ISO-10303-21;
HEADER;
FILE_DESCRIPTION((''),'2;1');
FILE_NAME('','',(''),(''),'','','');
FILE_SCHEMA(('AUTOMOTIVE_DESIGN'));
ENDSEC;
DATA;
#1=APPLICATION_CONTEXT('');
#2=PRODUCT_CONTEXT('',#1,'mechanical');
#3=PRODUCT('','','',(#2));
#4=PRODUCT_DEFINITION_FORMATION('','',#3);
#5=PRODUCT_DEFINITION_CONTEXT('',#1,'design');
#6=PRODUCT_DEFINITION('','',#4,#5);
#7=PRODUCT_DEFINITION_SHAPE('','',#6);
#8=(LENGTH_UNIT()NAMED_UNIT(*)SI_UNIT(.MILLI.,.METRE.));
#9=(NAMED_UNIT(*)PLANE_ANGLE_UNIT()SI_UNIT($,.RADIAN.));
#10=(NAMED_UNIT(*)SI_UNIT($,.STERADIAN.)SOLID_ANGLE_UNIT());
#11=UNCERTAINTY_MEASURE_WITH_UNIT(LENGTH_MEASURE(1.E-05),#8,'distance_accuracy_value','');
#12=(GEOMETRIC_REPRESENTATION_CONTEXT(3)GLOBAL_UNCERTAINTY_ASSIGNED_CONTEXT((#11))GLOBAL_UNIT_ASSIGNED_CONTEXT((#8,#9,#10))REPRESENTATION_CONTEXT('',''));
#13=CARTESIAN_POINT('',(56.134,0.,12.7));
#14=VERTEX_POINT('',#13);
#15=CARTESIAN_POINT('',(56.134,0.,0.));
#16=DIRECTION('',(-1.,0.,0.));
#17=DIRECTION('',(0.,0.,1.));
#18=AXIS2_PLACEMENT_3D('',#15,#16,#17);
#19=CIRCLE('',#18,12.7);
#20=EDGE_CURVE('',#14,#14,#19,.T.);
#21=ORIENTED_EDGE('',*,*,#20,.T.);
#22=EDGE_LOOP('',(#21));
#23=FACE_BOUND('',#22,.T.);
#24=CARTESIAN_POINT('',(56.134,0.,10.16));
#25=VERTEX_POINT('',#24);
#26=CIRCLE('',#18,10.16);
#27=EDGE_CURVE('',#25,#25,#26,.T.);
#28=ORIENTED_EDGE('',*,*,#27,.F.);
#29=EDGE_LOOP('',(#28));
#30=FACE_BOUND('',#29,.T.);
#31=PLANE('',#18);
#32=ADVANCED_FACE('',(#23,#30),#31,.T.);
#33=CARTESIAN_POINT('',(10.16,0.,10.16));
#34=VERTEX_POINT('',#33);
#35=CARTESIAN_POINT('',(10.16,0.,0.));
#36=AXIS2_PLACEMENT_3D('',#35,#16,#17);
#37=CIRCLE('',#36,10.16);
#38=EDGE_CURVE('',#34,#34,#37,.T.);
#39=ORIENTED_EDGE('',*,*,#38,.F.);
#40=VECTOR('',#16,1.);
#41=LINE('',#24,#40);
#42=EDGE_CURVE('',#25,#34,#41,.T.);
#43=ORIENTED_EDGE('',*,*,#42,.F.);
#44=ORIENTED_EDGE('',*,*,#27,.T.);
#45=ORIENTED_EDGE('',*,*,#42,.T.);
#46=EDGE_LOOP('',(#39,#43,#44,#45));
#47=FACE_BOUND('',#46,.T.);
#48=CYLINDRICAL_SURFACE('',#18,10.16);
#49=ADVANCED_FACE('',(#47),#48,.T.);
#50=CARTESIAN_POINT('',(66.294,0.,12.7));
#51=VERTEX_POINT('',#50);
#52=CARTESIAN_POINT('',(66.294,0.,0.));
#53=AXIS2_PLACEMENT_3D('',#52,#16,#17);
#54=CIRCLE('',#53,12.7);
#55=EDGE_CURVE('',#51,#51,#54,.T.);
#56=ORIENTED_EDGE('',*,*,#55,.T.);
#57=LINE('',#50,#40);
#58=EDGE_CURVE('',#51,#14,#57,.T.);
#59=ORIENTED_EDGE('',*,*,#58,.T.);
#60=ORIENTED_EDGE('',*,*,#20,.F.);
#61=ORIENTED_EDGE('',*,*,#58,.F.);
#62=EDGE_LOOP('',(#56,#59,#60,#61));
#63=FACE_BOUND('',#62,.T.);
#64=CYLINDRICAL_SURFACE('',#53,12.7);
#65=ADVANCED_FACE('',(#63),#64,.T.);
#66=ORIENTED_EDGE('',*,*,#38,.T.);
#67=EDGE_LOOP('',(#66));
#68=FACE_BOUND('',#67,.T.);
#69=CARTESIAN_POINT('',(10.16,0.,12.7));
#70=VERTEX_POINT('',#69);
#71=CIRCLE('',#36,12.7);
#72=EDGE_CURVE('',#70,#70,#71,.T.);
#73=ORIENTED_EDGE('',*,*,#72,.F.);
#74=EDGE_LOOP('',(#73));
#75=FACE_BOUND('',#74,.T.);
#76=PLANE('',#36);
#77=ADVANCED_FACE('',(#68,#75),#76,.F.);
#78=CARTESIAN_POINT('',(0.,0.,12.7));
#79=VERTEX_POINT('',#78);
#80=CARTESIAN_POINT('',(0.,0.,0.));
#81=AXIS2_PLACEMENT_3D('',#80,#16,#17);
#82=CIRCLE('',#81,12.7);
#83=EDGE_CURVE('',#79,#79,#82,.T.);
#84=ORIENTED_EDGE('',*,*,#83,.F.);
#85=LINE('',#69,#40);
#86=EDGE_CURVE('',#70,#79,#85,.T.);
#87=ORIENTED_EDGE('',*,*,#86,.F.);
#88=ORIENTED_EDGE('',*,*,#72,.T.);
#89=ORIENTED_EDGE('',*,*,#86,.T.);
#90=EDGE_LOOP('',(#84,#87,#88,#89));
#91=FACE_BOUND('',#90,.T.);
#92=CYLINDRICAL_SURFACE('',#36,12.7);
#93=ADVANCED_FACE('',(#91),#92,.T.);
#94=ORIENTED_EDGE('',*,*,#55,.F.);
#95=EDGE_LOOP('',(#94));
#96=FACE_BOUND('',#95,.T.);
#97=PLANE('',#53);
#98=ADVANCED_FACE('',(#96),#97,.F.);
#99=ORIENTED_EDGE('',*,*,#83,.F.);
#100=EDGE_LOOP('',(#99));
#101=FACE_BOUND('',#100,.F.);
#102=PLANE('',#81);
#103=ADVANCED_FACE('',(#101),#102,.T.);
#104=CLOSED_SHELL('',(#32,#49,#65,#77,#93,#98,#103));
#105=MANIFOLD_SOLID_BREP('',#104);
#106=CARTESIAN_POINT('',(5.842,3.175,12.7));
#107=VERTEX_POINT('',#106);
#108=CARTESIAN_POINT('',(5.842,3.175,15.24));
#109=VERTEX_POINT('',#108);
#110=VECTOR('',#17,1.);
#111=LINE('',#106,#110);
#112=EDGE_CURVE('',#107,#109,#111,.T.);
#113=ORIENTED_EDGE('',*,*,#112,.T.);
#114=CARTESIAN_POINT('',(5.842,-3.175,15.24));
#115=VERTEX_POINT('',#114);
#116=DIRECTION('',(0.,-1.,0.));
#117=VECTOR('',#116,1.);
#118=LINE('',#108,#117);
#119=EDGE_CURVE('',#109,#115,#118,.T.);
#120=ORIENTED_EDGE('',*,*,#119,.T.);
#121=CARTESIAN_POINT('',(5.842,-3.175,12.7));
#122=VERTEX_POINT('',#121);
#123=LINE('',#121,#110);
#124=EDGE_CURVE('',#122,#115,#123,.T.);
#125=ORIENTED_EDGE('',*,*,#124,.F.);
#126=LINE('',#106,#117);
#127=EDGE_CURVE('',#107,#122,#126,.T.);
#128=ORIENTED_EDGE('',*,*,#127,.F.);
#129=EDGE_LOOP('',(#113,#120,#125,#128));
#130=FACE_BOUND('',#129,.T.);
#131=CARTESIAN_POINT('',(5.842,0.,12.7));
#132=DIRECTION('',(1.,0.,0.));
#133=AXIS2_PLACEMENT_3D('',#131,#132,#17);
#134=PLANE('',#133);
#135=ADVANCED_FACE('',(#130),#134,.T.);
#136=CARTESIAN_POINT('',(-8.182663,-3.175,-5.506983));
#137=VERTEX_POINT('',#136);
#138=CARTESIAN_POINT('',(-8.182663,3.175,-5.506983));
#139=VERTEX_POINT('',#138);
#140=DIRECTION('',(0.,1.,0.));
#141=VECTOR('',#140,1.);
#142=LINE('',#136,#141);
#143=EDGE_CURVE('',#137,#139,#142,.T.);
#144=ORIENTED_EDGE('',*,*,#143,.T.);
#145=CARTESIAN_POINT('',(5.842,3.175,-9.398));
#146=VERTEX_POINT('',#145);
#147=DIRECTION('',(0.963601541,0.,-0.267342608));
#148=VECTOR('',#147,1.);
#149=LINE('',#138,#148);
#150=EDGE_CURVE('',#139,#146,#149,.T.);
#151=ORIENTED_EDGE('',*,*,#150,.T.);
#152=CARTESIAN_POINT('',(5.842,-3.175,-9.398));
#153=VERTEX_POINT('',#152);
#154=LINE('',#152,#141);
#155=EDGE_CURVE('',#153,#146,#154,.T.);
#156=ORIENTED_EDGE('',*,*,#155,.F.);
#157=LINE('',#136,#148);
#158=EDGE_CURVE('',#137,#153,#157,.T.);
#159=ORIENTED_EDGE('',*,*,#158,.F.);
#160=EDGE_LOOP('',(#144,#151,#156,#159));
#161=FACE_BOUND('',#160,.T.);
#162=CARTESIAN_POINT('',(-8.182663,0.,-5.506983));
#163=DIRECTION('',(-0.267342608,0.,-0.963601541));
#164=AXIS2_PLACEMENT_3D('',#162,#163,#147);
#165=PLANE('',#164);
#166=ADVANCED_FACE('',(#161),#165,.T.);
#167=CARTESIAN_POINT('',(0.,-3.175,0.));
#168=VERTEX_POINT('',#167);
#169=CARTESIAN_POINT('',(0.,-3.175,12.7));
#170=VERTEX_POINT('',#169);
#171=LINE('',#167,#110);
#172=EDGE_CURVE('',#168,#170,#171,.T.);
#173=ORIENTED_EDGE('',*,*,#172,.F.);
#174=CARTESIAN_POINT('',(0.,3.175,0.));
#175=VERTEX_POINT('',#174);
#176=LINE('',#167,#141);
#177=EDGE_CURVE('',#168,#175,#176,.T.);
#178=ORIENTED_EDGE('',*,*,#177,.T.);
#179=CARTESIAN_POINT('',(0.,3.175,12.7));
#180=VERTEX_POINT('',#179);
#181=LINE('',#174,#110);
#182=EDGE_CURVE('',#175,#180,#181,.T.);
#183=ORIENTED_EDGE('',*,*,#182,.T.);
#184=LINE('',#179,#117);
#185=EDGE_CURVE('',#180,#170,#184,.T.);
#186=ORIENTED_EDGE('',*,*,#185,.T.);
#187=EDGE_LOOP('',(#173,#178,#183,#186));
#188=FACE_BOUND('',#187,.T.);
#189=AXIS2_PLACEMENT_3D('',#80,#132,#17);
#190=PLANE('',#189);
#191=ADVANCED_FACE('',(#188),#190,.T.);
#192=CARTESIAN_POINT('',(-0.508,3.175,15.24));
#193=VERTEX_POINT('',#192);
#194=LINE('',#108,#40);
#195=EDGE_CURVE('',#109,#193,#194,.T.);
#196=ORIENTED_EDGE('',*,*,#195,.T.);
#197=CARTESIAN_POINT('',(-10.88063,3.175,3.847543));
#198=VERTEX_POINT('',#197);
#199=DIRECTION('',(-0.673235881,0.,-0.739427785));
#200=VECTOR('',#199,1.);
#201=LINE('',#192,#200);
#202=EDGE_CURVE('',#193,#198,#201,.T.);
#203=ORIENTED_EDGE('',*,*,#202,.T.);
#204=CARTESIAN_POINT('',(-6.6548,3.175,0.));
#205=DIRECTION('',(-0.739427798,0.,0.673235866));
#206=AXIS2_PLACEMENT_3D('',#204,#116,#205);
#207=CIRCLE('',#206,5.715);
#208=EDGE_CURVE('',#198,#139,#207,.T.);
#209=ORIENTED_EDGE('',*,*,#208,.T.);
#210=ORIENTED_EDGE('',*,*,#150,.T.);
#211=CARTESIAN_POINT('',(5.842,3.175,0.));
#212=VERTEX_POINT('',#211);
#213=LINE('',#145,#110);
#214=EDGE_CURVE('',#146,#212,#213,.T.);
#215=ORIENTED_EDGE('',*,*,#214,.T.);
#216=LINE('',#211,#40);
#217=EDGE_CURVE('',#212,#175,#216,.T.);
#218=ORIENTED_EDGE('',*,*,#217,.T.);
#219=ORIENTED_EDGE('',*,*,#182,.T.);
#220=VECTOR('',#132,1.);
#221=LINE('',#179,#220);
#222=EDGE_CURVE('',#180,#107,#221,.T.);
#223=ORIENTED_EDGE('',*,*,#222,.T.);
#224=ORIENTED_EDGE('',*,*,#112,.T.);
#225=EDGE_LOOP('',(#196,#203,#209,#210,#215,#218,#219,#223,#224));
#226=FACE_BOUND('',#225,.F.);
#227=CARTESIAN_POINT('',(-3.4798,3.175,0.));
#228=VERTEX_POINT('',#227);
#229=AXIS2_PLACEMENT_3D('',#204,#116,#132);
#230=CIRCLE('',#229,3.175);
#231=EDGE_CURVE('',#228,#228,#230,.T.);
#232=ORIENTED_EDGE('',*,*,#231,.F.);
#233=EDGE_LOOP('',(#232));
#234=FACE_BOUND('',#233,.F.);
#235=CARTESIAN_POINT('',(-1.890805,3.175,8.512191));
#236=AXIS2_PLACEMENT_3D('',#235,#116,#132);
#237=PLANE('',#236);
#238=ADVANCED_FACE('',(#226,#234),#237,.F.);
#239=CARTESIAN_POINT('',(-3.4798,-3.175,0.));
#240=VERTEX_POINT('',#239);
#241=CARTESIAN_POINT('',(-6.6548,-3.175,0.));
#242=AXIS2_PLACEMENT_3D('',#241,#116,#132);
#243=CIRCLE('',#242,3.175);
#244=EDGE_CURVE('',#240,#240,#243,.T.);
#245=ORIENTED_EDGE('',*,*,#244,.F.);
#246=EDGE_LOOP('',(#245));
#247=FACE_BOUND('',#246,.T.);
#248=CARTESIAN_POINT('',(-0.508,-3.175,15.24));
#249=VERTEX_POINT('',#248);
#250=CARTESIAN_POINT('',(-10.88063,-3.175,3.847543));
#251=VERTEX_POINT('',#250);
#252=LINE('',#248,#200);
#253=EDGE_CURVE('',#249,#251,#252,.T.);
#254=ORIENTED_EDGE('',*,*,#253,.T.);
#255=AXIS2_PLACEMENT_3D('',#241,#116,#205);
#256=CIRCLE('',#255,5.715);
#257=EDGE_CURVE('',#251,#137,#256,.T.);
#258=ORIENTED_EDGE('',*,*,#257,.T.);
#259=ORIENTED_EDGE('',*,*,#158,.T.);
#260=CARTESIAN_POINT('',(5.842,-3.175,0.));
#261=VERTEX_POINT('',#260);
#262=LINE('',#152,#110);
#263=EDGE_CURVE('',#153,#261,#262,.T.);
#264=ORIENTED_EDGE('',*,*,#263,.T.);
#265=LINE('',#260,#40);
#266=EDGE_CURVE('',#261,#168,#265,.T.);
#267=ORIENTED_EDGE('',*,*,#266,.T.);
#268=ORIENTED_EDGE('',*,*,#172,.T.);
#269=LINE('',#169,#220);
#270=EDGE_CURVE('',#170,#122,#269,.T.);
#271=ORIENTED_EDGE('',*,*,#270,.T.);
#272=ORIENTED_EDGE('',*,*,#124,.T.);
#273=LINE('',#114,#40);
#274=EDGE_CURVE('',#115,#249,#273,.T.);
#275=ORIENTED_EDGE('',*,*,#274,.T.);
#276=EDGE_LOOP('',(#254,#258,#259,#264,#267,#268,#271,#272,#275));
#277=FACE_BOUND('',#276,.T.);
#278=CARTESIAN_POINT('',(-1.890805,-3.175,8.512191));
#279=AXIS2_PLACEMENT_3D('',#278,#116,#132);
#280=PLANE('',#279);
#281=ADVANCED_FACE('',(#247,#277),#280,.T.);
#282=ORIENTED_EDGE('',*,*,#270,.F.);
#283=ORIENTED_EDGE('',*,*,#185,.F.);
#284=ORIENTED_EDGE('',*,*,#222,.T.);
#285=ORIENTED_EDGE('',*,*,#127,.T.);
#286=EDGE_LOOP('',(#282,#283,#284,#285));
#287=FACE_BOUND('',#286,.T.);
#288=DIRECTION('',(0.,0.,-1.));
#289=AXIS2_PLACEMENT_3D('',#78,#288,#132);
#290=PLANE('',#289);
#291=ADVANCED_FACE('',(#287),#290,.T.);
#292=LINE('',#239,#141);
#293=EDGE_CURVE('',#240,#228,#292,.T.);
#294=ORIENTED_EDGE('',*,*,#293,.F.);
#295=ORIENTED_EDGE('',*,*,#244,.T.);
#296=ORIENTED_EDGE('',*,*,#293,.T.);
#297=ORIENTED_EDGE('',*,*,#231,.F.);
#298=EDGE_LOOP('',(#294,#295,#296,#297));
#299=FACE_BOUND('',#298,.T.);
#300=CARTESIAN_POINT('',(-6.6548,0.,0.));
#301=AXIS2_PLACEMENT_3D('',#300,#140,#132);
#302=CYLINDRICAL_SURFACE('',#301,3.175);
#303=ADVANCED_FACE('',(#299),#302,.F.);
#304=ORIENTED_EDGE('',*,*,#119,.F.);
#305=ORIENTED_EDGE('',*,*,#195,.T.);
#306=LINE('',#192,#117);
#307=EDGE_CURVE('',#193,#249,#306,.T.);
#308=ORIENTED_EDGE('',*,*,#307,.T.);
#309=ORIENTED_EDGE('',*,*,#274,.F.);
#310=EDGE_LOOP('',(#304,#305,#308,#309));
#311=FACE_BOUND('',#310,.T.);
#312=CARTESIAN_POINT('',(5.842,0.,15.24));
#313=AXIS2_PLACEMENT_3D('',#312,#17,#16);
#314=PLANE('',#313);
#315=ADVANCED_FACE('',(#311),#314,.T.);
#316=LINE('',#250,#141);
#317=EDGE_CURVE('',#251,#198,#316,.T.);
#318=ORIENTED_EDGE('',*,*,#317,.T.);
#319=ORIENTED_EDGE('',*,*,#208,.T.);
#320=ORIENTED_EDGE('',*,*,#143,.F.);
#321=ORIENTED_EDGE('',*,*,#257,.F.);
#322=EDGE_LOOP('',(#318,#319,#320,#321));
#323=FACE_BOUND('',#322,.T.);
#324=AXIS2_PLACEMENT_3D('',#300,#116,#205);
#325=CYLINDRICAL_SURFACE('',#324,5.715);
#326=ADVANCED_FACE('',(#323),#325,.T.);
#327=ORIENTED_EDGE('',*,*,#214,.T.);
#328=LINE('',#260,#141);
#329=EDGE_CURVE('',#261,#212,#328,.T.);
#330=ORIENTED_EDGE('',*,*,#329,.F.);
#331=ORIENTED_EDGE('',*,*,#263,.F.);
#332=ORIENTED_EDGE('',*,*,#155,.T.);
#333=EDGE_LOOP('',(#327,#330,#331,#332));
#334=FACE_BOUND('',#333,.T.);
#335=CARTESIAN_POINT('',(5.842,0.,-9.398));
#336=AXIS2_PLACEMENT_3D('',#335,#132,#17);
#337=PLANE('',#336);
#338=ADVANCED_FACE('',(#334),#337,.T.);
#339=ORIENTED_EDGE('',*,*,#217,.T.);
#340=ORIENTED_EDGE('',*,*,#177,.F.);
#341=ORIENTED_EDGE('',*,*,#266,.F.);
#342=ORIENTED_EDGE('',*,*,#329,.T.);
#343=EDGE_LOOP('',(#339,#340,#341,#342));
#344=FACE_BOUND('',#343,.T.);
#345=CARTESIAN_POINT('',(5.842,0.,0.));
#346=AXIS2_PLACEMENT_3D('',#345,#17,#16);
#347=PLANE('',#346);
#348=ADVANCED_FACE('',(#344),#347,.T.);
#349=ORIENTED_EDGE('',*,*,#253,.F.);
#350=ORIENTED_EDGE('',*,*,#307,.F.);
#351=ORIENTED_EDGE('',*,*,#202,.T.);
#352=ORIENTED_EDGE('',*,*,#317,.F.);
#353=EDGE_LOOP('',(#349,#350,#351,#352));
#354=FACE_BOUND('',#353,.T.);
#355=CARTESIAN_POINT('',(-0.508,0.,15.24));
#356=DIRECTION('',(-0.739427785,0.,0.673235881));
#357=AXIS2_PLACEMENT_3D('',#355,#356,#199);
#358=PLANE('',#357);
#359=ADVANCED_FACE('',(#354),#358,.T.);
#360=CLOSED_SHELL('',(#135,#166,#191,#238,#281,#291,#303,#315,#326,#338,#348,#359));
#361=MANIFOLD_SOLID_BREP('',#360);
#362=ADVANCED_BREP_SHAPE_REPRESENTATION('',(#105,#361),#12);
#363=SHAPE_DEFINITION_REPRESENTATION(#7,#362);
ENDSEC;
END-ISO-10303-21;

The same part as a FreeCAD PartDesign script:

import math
import FreeCAD as App
import Part
import Sketcher

V = App.Vector
Q = App.Units.Quantity


def add_polygon(sketch, points):
    """Adds a closed chain of lines whose ends are joined by coincident constraints."""
    first, n = sketch.GeometryCount, len(points)
    for a, b in zip(points, points[1:] + points[:1]):
        sketch.addGeometry(Part.LineSegment(App.Vector(*a, 0), App.Vector(*b, 0)), False)
    for i in range(n):
        sketch.addConstraint(Sketcher.Constraint("Coincident", first + i, 2, first + (i + 1) % n, 1))

doc = App.newDocument("Part")
body = doc.addObject("PartDesign::Body", "Body")

sketch1 = body.newObject("Sketcher::SketchObject", "Sketch")
sketch1.AttachmentSupport = (doc.getObject("XZ_Plane"), [""])
sketch1.MapMode = "FlatFace"
add_polygon(sketch1, [(66.3, 0), (66.3, 12.7), (56.1, 12.7), (56.1, 10.2), (10.2, 10.2), (10.2, 12.7), (0, 12.7), (0, 0)])
sketch1.addConstraint(Sketcher.Constraint("Vertical", 0))
sketch1.addConstraint(Sketcher.Constraint("Horizontal", 1))
sketch1.addConstraint(Sketcher.Constraint("Vertical", 2))
sketch1.addConstraint(Sketcher.Constraint("Horizontal", 3))
sketch1.addConstraint(Sketcher.Constraint("Vertical", 4))
sketch1.addConstraint(Sketcher.Constraint("Horizontal", 5))
sketch1.addConstraint(Sketcher.Constraint("Vertical", 6))
sketch1.addConstraint(Sketcher.Constraint("Horizontal", 7))
sketch1.addConstraint(Sketcher.Constraint("Coincident", 6, 2, -1, 1))
sketch1.addConstraint(Sketcher.Constraint("Horizontal", 1, 2, 4, 2))
sketch1.addConstraint(Sketcher.Constraint("Equal", 1, 5))
sketch1.addConstraint(Sketcher.Constraint("DistanceX", 1, 2, 1, 1, Q("0.4 in")))
sketch1.addConstraint(Sketcher.Constraint("DistanceY", 0, 1, 0, 2, Q("0.5 in")))
sketch1.addConstraint(Sketcher.Constraint("DistanceY", 2, 2, 2, 1, Q("0.1 in")))
sketch1.addConstraint(Sketcher.Constraint("DistanceX", 3, 2, 3, 1, Q("1.81 in")))
revolution = body.newObject("PartDesign::Revolution", "Revolution")
revolution.Profile = sketch1
revolution.ReferenceAxis = (sketch1, ["H_Axis"])
revolution.Angle = 360
body2 = doc.addObject("PartDesign::Body", "Body001")

sketch2 = body2.newObject("Sketcher::SketchObject", "Sketch001")
sketch2.AttachmentSupport = (doc.getObject("XZ_Plane001"), [""])
sketch2.MapMode = "FlatFace"
sketch2.addGeometry(Part.LineSegment(V(0, 0, 0), V(0, 12.7, 0)), False)
sketch2.addGeometry(Part.LineSegment(V(0, 12.7, 0), V(5.8, 12.7, 0)), False)
sketch2.addGeometry(Part.LineSegment(V(5.8, 12.7, 0), V(5.8, 15.2, 0)), False)
sketch2.addGeometry(Part.LineSegment(V(5.8, 15.2, 0), V(-0.5, 15.2, 0)), False)
sketch2.addGeometry(Part.LineSegment(V(-0.5, 15.2, 0), V(-10.9, 3.8, 0)), False)
sketch2.addGeometry(Part.ArcOfCircle(Part.Circle(V(-6.7, 0, 0), V(0, 0, 1), 5.7), math.radians(138), math.radians(254)), False)
sketch2.addGeometry(Part.LineSegment(V(-8.2, -5.5, 0), V(5.8, -9.4, 0)), False)
sketch2.addGeometry(Part.LineSegment(V(5.8, -9.4, 0), V(5.8, 0, 0)), False)
sketch2.addGeometry(Part.LineSegment(V(5.8, 0, 0), V(0, 0, 0)), False)
sketch2.addGeometry(Part.Circle(V(-6.7, 0, 0), V(0, 0, 1), 3.2), False)
sketch2.addConstraint(Sketcher.Constraint("Coincident", 0, 2, 1, 1))
sketch2.addConstraint(Sketcher.Constraint("Coincident", 1, 2, 2, 1))
sketch2.addConstraint(Sketcher.Constraint("Coincident", 2, 2, 3, 1))
sketch2.addConstraint(Sketcher.Constraint("Coincident", 3, 2, 4, 1))
sketch2.addConstraint(Sketcher.Constraint("Tangent", 4, 2, 5, 1))
sketch2.addConstraint(Sketcher.Constraint("Tangent", 5, 2, 6, 1))
sketch2.addConstraint(Sketcher.Constraint("Coincident", 6, 2, 7, 1))
sketch2.addConstraint(Sketcher.Constraint("Coincident", 7, 2, 8, 1))
sketch2.addConstraint(Sketcher.Constraint("Coincident", 8, 2, 0, 1))
sketch2.addConstraint(Sketcher.Constraint("Vertical", 0))
sketch2.addConstraint(Sketcher.Constraint("Horizontal", 1))
sketch2.addConstraint(Sketcher.Constraint("Vertical", 2))
sketch2.addConstraint(Sketcher.Constraint("Horizontal", 3))
sketch2.addConstraint(Sketcher.Constraint("Vertical", 7))
sketch2.addConstraint(Sketcher.Constraint("Horizontal", 8))
sketch2.addConstraint(Sketcher.Constraint("Coincident", 8, 2, -1, 1))
sketch2.addConstraint(Sketcher.Constraint("Coincident", 9, 3, 5, 3))
sketch2.addConstraint(Sketcher.Constraint("PointOnObject", 5, 3, -1))
sketch2.addConstraint(Sketcher.Constraint("Vertical", 2, 2, 6, 2))
sketch2.addConstraint(Sketcher.Constraint("Diameter", 9, Q("0.25 in")))
sketch2.addConstraint(Sketcher.Constraint("DistanceY", 0, 1, 0, 2, Q("0.5 in")))
sketch2.addConstraint(Sketcher.Constraint("DistanceY", 2, 1, 2, 2, Q("0.1 in")))
sketch2.addConstraint(Sketcher.Constraint("Radius", 5, Q("0.225 in")))
sketch2.addConstraint(Sketcher.Constraint("DistanceX", 1, 1, 1, 2, Q("0.23 in")))
sketch2.addConstraint(Sketcher.Constraint("DistanceX", 3, 2, 3, 1, Q("0.25 in")))
sketch2.addConstraint(Sketcher.Constraint("DistanceY", 7, 1, 7, 2, Q("0.37 in")))
sketch2.addConstraint(Sketcher.Constraint("DistanceX", 5, 3, -1, 1, Q("0.262 in")))
pad1 = body2.newObject("PartDesign::Pad", "Pad")
pad1.Profile = sketch2
pad1.Length = Q("0.25 in")
pad1.Midplane = True

doc.recompute()
